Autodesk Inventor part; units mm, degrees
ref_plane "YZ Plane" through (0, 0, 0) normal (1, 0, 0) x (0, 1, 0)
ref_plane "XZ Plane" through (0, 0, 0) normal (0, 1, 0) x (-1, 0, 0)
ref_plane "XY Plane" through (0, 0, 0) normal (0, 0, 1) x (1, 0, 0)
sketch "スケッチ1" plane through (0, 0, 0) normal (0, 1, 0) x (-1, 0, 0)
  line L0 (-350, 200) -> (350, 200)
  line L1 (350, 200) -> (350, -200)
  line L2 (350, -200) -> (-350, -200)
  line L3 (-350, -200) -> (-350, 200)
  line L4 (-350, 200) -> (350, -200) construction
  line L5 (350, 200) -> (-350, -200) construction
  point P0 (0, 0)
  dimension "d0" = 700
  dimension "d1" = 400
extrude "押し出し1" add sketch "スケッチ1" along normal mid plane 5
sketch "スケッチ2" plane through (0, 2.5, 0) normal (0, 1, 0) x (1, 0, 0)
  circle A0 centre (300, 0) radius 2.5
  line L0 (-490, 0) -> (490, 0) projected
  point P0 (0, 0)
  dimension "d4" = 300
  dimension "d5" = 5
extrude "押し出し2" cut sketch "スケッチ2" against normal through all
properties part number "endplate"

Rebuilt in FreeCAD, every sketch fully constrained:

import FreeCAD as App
import Part
import Sketcher

V = App.Vector
Q = App.Units.Quantity


def add_polygon(sketch, points):
    """Adds a closed chain of lines whose ends are joined by coincident constraints."""
    first, n = sketch.GeometryCount, len(points)
    for a, b in zip(points, points[1:] + points[:1]):
        sketch.addGeometry(Part.LineSegment(App.Vector(*a, 0), App.Vector(*b, 0)), False)
    for i in range(n):
        sketch.addConstraint(Sketcher.Constraint("Coincident", first + i, 2, first + (i + 1) % n, 1))

doc = App.newDocument("Part")
body = doc.addObject("PartDesign::Body", "Body")

# Sketch on XZ plane
sketch1 = body.newObject("Sketcher::SketchObject", "Sketch")
sketch1.AttachmentSupport = (doc.getObject("XZ_Plane"), [""])
sketch1.MapMode = "FlatFace"
add_polygon(sketch1, [(-350, 200), (350, 200), (350, -200), (-350, -200)])  # lines 0-3
sketch1.addConstraint(Sketcher.Constraint("Horizontal", 0))
sketch1.addConstraint(Sketcher.Constraint("Vertical", 1))
sketch1.addConstraint(Sketcher.Constraint("Horizontal", 2))
sketch1.addConstraint(Sketcher.Constraint("Vertical", 3))
sketch1.addConstraint(Sketcher.Constraint("Symmetric", 0, 2, 2, 2, -1, 1))
sketch1.addConstraint(Sketcher.Constraint("DistanceX", 0, 1, 0, 2, Q("700 mm")))
sketch1.addConstraint(Sketcher.Constraint("DistanceY", 1, 2, 1, 1, Q("400 mm")))
pad1 = body.newObject("PartDesign::Pad", "Pad")
pad1.Profile = sketch1
pad1.Length = 5
pad1.Midplane = True

# Sketch on XZ plane
sketch2 = body.newObject("Sketcher::SketchObject", "Sketch001")
sketch2.AttachmentSupport = (doc.getObject("XZ_Plane"), [""])
sketch2.MapMode = "FlatFace"
sketch2.AttachmentOffset = App.Placement(V(0, 0, -2.5), App.Rotation())
sketch2.addGeometry(Part.Circle(V(300, 0, 0), V(0, 0, 1), 2.5), False)
sketch2.addConstraint(Sketcher.Constraint("PointOnObject", 0, 3, -1))
sketch2.addConstraint(Sketcher.Constraint("Diameter", 0, Q("5 mm")))
sketch2.addConstraint(Sketcher.Constraint("DistanceX", -1, 1, 0, 3, Q("300 mm")))
pocket1 = body.newObject("PartDesign::Pocket", "Pocket")
pocket1.Profile = sketch2
pocket1.Type = "ThroughAll"
pocket1.Reversed = True

doc.recompute()
